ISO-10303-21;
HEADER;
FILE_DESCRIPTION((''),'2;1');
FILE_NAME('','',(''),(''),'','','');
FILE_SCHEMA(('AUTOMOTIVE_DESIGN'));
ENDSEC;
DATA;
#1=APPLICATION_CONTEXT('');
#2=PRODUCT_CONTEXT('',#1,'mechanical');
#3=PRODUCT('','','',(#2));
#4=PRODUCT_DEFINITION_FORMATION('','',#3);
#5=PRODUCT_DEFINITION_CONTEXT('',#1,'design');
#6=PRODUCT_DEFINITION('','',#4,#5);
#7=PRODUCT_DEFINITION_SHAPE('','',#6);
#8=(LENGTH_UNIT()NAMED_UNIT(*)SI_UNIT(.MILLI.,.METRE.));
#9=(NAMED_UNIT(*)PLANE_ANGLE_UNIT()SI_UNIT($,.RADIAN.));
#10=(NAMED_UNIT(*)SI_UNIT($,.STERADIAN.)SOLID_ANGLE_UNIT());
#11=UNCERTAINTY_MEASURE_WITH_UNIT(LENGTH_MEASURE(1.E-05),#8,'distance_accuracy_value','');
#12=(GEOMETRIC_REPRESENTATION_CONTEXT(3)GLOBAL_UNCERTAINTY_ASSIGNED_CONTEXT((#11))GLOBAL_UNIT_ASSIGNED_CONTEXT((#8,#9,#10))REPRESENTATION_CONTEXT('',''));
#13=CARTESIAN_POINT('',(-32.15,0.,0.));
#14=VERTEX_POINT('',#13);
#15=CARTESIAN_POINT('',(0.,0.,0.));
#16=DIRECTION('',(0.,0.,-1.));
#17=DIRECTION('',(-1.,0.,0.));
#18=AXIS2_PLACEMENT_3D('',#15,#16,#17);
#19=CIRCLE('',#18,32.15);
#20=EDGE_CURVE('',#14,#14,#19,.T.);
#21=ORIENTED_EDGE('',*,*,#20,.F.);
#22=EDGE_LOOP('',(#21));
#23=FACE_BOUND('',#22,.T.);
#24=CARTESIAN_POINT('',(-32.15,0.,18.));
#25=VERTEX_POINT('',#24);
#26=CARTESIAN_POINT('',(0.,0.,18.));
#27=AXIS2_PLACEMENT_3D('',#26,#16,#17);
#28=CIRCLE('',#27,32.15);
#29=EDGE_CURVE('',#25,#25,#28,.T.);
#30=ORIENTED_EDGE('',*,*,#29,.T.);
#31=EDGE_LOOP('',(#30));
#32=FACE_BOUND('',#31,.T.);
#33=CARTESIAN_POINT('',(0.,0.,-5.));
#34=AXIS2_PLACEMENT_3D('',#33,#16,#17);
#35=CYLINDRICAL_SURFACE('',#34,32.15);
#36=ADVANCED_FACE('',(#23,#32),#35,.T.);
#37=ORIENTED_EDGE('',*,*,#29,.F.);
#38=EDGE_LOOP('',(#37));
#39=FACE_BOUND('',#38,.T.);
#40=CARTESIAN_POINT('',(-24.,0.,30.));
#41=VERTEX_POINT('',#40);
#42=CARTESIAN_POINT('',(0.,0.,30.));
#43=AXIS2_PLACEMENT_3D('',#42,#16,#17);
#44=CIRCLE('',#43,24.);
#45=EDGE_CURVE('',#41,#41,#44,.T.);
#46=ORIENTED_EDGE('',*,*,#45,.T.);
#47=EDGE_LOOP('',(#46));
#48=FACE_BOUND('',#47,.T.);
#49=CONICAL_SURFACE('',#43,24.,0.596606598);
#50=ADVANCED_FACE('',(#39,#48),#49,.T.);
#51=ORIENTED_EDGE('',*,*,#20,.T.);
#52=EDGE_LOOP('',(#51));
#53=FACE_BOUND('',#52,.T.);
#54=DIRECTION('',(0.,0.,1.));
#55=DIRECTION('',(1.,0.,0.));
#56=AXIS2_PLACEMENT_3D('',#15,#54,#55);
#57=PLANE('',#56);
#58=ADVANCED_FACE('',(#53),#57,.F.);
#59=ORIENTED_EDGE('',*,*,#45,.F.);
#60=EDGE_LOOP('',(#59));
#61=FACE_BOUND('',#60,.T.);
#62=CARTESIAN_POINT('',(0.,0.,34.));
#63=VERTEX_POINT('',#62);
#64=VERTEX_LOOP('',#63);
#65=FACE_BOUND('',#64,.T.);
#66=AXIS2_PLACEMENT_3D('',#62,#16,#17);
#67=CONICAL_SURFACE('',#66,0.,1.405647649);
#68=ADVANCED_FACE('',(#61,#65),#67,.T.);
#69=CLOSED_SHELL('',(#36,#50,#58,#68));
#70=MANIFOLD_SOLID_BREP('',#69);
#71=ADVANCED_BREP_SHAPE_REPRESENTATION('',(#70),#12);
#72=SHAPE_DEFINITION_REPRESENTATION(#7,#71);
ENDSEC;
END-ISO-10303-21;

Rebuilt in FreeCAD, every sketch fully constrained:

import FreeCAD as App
import Part
import Sketcher
Q = App.Units.Quantity


def add_polygon(sketch, points):
    """Adds a closed chain of lines whose ends are joined by coincident constraints."""
    first, n = sketch.GeometryCount, len(points)
    for a, b in zip(points, points[1:] + points[:1]):
        sketch.addGeometry(Part.LineSegment(App.Vector(*a, 0), App.Vector(*b, 0)), False)
    for i in range(n):
        sketch.addConstraint(Sketcher.Constraint("Coincident", first + i, 2, first + (i + 1) % n, 1))

doc = App.newDocument("Part")
body = doc.addObject("PartDesign::Body", "Body")

# Sketch on XZ plane
sketch1 = doc.addObject("Sketcher::SketchObject", "Sketch")
body.addObject(sketch1)
sketch1.AttachmentSupport = (doc.XZ_Plane, [""])
sketch1.MapMode = "FlatFace"
add_polygon(sketch1, [(0, 0), (0, 34), (24, 30), (32, 18), (32, 0)])  # lines 0-4
sketch1.addConstraint(Sketcher.Constraint("Vertical", 0))
sketch1.addConstraint(Sketcher.Constraint("Vertical", 3))
sketch1.addConstraint(Sketcher.Constraint("Horizontal", 4))
sketch1.addConstraint(Sketcher.Constraint("Coincident", 4, 2, -1, 1))
sketch1.addConstraint(Sketcher.Constraint("DistanceY", 0, 1, 0, 2, Q("34 mm")))
sketch1.addConstraint(Sketcher.Constraint("DistanceY", 3, 2, 3, 1, Q("18 mm")))
sketch1.addConstraint(Sketcher.Constraint("DistanceX", -1, 1, 1, 2, Q("24 mm")))
sketch1.addConstraint(Sketcher.Constraint("DistanceY", -1, 1, 1, 2, Q("30 mm")))
sketch1.addConstraint(Sketcher.Constraint("DistanceX", 4, 2, 4, 1, Q("32.15 mm")))
revolution = doc.addObject("PartDesign::Revolution", "Revolution")
body.addObject(revolution)
revolution.Profile = sketch1
revolution.ReferenceAxis = (sketch1, ["V_Axis"])
revolution.Angle = 360

doc.recompute()
